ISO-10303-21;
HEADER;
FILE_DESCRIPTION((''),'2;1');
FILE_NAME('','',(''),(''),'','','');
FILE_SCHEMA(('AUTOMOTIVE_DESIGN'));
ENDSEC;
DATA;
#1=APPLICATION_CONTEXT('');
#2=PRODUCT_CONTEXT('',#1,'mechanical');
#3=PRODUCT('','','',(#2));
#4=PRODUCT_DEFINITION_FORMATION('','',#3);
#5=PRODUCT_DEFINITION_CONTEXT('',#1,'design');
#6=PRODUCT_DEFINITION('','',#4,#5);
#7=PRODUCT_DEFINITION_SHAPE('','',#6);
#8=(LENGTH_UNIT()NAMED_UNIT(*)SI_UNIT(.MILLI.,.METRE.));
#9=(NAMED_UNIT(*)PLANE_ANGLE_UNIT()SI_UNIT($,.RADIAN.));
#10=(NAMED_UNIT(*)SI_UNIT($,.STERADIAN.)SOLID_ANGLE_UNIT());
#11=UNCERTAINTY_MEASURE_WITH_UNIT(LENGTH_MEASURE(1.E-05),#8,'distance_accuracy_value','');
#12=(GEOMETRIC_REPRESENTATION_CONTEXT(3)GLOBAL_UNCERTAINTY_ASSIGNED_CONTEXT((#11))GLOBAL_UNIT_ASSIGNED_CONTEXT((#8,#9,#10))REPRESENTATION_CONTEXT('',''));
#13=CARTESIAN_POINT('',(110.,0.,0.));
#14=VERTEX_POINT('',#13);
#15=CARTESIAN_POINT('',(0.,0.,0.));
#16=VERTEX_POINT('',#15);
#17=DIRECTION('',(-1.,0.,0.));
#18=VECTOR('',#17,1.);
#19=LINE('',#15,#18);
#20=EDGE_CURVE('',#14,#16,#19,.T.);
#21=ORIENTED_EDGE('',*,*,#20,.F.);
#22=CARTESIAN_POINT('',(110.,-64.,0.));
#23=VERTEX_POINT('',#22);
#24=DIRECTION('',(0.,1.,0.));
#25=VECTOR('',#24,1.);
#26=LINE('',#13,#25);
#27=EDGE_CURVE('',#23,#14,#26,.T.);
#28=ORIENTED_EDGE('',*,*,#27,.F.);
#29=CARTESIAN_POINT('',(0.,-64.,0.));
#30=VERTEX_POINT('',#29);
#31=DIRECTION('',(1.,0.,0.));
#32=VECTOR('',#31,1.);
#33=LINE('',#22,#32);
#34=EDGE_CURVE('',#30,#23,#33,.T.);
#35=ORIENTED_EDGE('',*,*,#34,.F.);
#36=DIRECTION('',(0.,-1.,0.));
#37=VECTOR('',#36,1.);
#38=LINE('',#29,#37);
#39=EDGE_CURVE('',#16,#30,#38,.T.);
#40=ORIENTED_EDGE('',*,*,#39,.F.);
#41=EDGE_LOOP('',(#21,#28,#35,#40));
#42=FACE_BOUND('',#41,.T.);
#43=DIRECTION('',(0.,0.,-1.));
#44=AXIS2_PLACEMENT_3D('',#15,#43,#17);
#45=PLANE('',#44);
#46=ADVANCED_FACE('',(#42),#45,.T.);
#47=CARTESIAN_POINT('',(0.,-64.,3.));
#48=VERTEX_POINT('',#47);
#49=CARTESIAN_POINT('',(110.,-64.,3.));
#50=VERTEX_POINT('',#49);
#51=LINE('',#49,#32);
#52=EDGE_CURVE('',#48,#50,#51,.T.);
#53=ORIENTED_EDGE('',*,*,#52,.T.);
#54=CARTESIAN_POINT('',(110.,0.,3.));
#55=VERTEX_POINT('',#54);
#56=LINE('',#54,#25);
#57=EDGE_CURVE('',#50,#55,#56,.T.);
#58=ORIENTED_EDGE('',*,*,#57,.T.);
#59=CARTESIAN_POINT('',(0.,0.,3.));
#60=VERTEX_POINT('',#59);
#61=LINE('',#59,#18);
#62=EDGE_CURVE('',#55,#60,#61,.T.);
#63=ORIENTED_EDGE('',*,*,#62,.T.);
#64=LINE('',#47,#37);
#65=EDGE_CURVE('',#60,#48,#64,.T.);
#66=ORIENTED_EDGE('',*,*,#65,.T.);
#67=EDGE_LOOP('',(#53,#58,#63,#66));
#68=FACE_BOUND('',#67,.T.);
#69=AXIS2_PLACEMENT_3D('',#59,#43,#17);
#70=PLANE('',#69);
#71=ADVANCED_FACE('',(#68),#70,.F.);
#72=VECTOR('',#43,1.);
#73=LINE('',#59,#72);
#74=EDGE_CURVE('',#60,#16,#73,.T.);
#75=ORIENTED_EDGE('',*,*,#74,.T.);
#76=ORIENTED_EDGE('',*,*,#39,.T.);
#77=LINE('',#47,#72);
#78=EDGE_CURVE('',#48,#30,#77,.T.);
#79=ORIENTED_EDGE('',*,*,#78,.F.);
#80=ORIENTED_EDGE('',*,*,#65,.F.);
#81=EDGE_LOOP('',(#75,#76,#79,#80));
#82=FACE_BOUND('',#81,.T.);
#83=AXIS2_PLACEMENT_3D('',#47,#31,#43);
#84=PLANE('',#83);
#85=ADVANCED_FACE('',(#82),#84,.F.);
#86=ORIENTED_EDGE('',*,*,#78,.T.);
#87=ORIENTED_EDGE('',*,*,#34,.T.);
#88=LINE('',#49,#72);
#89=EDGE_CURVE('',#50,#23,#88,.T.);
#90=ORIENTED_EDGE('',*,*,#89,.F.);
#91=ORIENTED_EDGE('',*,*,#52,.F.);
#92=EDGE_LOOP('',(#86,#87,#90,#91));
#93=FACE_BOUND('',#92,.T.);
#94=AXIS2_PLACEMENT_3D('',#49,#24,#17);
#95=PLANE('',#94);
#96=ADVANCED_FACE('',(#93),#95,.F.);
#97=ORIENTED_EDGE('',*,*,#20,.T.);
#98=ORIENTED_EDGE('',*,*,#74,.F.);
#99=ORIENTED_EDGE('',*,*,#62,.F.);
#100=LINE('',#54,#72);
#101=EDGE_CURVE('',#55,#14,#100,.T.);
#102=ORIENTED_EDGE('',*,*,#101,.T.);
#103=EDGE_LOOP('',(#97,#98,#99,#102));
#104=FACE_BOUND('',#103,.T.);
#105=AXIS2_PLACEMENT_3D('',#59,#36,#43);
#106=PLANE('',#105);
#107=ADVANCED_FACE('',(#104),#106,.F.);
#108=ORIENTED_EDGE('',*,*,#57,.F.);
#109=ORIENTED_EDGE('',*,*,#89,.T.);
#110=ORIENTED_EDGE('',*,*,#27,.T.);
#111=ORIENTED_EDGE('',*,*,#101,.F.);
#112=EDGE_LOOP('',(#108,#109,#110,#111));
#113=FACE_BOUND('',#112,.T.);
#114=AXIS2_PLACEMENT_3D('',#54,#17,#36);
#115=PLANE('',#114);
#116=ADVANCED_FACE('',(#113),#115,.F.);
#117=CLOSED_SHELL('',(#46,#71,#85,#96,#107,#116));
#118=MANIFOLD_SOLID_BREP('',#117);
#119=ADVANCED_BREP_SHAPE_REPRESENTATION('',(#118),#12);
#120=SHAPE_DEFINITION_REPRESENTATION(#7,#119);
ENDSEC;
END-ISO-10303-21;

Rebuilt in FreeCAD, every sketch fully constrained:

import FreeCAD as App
import Part
import Sketcher


def add_polygon(sketch, points):
    """Adds a closed chain of lines whose ends are joined by coincident constraints."""
    first, n = sketch.GeometryCount, len(points)
    for a, b in zip(points, points[1:] + points[:1]):
        sketch.addGeometry(Part.LineSegment(App.Vector(*a, 0), App.Vector(*b, 0)), False)
    for i in range(n):
        sketch.addConstraint(Sketcher.Constraint("Coincident", first + i, 2, first + (i + 1) % n, 1))

doc = App.newDocument("Part")
params = doc.addObject("Spreadsheet::Sheet", "Params")
for row, (alias, value) in enumerate([
    ("sketch1_width", "110 mm"),
    ("sketch1_height", "64 mm"),
    ("pad1_length", "3 mm"),
], start=1):
    params.set(f"A{row}", alias)
    params.set(f"B{row}", "=" + value)
    params.setAlias(f"B{row}", alias)

body = doc.addObject("PartDesign::Body", "Body")

sketch1 = body.newObject("Sketcher::SketchObject", "Sketch")
sketch1.AttachmentSupport = (doc.getObject("XY_Plane"), [""])
sketch1.MapMode = "FlatFace"
add_polygon(sketch1, [(0, 0), (0, -64), (110, -64), (110, 0)])
sketch1.addConstraint([
    Sketcher.Constraint("Vertical", 0),
    Sketcher.Constraint("Horizontal", 1),
    Sketcher.Constraint("Vertical", 2),
    Sketcher.Constraint("Horizontal", 3),
    Sketcher.Constraint("Coincident", 3, 2, -1, 1),
    Sketcher.Constraint("DistanceX", 1, 1, 1, 2, 110.0),
    Sketcher.Constraint("DistanceY", 0, 2, 0, 1, 64.0),
])
sketch1.setExpression("Constraints[9]", "Params.sketch1_width")
sketch1.setExpression("Constraints[10]", "Params.sketch1_height")
pad1 = body.newObject("PartDesign::Pad", "Pad")
pad1.Profile = sketch1
pad1.setExpression("Length", "Params.pad1_length")

doc.recompute()
